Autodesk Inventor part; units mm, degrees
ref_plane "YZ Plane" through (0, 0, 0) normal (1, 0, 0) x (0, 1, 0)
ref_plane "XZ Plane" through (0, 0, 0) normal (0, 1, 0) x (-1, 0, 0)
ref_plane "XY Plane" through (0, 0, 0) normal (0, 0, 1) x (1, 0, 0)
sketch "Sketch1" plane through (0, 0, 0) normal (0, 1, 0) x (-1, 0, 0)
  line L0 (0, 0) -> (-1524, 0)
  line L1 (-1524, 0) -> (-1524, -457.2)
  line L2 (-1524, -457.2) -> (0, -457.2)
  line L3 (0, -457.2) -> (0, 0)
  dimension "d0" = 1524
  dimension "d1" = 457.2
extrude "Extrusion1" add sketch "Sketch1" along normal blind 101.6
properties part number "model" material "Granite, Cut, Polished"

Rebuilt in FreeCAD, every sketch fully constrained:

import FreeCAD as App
import Part
import Sketcher
from FreeCAD import Vector
Q = App.Units.Quantity

doc = App.newDocument("Part")
body = doc.addObject("PartDesign::Body", "Body")

# Sketch on XZ plane
sketch1 = doc.addObject("Sketcher::SketchObject", "Sketch")
body.addObject(sketch1)
sketch1.AttachmentSupport = (doc.XZ_Plane, [""])
sketch1.MapMode = "FlatFace"
sketch1.addGeometry(Part.LineSegment(Vector(0, -457.2, 0), Vector(0, 0, 0)), False)
sketch1.addGeometry(Part.LineSegment(Vector(0, 0, 0), Vector(1524, 0, 0)), False)
sketch1.addGeometry(Part.LineSegment(Vector(1524, 0, 0), Vector(1524, -457.2, 0)), False)
sketch1.addGeometry(Part.LineSegment(Vector(1524, -457.2, 0), Vector(0, -457.2, 0)), False)
sketch1.addConstraint(Sketcher.Constraint("Coincident", 0, 2, 1, 1))
sketch1.addConstraint(Sketcher.Constraint("Coincident", 1, 2, 2, 1))
sketch1.addConstraint(Sketcher.Constraint("Coincident", 2, 2, 3, 1))
sketch1.addConstraint(Sketcher.Constraint("Coincident", 3, 2, 0, 1))
sketch1.addConstraint(Sketcher.Constraint("Vertical", 0))
sketch1.addConstraint(Sketcher.Constraint("Horizontal", 1))
sketch1.addConstraint(Sketcher.Constraint("Vertical", 2))
sketch1.addConstraint(Sketcher.Constraint("Horizontal", 3))
sketch1.addConstraint(Sketcher.Constraint("Coincident", 0, 2, -1, 1))
sketch1.addConstraint(Sketcher.Constraint("DistanceX", 1, 1, 1, 2, Q("60 in")))
sketch1.addConstraint(Sketcher.Constraint("DistanceY", 0, 1, 0, 2, Q("18 in")))
pad1 = doc.addObject("PartDesign::Pad", "Pad")
body.addObject(pad1)
pad1.Profile = sketch1
pad1.Length = Q("4 in")
pad1.Reversed = True

doc.recompute()
